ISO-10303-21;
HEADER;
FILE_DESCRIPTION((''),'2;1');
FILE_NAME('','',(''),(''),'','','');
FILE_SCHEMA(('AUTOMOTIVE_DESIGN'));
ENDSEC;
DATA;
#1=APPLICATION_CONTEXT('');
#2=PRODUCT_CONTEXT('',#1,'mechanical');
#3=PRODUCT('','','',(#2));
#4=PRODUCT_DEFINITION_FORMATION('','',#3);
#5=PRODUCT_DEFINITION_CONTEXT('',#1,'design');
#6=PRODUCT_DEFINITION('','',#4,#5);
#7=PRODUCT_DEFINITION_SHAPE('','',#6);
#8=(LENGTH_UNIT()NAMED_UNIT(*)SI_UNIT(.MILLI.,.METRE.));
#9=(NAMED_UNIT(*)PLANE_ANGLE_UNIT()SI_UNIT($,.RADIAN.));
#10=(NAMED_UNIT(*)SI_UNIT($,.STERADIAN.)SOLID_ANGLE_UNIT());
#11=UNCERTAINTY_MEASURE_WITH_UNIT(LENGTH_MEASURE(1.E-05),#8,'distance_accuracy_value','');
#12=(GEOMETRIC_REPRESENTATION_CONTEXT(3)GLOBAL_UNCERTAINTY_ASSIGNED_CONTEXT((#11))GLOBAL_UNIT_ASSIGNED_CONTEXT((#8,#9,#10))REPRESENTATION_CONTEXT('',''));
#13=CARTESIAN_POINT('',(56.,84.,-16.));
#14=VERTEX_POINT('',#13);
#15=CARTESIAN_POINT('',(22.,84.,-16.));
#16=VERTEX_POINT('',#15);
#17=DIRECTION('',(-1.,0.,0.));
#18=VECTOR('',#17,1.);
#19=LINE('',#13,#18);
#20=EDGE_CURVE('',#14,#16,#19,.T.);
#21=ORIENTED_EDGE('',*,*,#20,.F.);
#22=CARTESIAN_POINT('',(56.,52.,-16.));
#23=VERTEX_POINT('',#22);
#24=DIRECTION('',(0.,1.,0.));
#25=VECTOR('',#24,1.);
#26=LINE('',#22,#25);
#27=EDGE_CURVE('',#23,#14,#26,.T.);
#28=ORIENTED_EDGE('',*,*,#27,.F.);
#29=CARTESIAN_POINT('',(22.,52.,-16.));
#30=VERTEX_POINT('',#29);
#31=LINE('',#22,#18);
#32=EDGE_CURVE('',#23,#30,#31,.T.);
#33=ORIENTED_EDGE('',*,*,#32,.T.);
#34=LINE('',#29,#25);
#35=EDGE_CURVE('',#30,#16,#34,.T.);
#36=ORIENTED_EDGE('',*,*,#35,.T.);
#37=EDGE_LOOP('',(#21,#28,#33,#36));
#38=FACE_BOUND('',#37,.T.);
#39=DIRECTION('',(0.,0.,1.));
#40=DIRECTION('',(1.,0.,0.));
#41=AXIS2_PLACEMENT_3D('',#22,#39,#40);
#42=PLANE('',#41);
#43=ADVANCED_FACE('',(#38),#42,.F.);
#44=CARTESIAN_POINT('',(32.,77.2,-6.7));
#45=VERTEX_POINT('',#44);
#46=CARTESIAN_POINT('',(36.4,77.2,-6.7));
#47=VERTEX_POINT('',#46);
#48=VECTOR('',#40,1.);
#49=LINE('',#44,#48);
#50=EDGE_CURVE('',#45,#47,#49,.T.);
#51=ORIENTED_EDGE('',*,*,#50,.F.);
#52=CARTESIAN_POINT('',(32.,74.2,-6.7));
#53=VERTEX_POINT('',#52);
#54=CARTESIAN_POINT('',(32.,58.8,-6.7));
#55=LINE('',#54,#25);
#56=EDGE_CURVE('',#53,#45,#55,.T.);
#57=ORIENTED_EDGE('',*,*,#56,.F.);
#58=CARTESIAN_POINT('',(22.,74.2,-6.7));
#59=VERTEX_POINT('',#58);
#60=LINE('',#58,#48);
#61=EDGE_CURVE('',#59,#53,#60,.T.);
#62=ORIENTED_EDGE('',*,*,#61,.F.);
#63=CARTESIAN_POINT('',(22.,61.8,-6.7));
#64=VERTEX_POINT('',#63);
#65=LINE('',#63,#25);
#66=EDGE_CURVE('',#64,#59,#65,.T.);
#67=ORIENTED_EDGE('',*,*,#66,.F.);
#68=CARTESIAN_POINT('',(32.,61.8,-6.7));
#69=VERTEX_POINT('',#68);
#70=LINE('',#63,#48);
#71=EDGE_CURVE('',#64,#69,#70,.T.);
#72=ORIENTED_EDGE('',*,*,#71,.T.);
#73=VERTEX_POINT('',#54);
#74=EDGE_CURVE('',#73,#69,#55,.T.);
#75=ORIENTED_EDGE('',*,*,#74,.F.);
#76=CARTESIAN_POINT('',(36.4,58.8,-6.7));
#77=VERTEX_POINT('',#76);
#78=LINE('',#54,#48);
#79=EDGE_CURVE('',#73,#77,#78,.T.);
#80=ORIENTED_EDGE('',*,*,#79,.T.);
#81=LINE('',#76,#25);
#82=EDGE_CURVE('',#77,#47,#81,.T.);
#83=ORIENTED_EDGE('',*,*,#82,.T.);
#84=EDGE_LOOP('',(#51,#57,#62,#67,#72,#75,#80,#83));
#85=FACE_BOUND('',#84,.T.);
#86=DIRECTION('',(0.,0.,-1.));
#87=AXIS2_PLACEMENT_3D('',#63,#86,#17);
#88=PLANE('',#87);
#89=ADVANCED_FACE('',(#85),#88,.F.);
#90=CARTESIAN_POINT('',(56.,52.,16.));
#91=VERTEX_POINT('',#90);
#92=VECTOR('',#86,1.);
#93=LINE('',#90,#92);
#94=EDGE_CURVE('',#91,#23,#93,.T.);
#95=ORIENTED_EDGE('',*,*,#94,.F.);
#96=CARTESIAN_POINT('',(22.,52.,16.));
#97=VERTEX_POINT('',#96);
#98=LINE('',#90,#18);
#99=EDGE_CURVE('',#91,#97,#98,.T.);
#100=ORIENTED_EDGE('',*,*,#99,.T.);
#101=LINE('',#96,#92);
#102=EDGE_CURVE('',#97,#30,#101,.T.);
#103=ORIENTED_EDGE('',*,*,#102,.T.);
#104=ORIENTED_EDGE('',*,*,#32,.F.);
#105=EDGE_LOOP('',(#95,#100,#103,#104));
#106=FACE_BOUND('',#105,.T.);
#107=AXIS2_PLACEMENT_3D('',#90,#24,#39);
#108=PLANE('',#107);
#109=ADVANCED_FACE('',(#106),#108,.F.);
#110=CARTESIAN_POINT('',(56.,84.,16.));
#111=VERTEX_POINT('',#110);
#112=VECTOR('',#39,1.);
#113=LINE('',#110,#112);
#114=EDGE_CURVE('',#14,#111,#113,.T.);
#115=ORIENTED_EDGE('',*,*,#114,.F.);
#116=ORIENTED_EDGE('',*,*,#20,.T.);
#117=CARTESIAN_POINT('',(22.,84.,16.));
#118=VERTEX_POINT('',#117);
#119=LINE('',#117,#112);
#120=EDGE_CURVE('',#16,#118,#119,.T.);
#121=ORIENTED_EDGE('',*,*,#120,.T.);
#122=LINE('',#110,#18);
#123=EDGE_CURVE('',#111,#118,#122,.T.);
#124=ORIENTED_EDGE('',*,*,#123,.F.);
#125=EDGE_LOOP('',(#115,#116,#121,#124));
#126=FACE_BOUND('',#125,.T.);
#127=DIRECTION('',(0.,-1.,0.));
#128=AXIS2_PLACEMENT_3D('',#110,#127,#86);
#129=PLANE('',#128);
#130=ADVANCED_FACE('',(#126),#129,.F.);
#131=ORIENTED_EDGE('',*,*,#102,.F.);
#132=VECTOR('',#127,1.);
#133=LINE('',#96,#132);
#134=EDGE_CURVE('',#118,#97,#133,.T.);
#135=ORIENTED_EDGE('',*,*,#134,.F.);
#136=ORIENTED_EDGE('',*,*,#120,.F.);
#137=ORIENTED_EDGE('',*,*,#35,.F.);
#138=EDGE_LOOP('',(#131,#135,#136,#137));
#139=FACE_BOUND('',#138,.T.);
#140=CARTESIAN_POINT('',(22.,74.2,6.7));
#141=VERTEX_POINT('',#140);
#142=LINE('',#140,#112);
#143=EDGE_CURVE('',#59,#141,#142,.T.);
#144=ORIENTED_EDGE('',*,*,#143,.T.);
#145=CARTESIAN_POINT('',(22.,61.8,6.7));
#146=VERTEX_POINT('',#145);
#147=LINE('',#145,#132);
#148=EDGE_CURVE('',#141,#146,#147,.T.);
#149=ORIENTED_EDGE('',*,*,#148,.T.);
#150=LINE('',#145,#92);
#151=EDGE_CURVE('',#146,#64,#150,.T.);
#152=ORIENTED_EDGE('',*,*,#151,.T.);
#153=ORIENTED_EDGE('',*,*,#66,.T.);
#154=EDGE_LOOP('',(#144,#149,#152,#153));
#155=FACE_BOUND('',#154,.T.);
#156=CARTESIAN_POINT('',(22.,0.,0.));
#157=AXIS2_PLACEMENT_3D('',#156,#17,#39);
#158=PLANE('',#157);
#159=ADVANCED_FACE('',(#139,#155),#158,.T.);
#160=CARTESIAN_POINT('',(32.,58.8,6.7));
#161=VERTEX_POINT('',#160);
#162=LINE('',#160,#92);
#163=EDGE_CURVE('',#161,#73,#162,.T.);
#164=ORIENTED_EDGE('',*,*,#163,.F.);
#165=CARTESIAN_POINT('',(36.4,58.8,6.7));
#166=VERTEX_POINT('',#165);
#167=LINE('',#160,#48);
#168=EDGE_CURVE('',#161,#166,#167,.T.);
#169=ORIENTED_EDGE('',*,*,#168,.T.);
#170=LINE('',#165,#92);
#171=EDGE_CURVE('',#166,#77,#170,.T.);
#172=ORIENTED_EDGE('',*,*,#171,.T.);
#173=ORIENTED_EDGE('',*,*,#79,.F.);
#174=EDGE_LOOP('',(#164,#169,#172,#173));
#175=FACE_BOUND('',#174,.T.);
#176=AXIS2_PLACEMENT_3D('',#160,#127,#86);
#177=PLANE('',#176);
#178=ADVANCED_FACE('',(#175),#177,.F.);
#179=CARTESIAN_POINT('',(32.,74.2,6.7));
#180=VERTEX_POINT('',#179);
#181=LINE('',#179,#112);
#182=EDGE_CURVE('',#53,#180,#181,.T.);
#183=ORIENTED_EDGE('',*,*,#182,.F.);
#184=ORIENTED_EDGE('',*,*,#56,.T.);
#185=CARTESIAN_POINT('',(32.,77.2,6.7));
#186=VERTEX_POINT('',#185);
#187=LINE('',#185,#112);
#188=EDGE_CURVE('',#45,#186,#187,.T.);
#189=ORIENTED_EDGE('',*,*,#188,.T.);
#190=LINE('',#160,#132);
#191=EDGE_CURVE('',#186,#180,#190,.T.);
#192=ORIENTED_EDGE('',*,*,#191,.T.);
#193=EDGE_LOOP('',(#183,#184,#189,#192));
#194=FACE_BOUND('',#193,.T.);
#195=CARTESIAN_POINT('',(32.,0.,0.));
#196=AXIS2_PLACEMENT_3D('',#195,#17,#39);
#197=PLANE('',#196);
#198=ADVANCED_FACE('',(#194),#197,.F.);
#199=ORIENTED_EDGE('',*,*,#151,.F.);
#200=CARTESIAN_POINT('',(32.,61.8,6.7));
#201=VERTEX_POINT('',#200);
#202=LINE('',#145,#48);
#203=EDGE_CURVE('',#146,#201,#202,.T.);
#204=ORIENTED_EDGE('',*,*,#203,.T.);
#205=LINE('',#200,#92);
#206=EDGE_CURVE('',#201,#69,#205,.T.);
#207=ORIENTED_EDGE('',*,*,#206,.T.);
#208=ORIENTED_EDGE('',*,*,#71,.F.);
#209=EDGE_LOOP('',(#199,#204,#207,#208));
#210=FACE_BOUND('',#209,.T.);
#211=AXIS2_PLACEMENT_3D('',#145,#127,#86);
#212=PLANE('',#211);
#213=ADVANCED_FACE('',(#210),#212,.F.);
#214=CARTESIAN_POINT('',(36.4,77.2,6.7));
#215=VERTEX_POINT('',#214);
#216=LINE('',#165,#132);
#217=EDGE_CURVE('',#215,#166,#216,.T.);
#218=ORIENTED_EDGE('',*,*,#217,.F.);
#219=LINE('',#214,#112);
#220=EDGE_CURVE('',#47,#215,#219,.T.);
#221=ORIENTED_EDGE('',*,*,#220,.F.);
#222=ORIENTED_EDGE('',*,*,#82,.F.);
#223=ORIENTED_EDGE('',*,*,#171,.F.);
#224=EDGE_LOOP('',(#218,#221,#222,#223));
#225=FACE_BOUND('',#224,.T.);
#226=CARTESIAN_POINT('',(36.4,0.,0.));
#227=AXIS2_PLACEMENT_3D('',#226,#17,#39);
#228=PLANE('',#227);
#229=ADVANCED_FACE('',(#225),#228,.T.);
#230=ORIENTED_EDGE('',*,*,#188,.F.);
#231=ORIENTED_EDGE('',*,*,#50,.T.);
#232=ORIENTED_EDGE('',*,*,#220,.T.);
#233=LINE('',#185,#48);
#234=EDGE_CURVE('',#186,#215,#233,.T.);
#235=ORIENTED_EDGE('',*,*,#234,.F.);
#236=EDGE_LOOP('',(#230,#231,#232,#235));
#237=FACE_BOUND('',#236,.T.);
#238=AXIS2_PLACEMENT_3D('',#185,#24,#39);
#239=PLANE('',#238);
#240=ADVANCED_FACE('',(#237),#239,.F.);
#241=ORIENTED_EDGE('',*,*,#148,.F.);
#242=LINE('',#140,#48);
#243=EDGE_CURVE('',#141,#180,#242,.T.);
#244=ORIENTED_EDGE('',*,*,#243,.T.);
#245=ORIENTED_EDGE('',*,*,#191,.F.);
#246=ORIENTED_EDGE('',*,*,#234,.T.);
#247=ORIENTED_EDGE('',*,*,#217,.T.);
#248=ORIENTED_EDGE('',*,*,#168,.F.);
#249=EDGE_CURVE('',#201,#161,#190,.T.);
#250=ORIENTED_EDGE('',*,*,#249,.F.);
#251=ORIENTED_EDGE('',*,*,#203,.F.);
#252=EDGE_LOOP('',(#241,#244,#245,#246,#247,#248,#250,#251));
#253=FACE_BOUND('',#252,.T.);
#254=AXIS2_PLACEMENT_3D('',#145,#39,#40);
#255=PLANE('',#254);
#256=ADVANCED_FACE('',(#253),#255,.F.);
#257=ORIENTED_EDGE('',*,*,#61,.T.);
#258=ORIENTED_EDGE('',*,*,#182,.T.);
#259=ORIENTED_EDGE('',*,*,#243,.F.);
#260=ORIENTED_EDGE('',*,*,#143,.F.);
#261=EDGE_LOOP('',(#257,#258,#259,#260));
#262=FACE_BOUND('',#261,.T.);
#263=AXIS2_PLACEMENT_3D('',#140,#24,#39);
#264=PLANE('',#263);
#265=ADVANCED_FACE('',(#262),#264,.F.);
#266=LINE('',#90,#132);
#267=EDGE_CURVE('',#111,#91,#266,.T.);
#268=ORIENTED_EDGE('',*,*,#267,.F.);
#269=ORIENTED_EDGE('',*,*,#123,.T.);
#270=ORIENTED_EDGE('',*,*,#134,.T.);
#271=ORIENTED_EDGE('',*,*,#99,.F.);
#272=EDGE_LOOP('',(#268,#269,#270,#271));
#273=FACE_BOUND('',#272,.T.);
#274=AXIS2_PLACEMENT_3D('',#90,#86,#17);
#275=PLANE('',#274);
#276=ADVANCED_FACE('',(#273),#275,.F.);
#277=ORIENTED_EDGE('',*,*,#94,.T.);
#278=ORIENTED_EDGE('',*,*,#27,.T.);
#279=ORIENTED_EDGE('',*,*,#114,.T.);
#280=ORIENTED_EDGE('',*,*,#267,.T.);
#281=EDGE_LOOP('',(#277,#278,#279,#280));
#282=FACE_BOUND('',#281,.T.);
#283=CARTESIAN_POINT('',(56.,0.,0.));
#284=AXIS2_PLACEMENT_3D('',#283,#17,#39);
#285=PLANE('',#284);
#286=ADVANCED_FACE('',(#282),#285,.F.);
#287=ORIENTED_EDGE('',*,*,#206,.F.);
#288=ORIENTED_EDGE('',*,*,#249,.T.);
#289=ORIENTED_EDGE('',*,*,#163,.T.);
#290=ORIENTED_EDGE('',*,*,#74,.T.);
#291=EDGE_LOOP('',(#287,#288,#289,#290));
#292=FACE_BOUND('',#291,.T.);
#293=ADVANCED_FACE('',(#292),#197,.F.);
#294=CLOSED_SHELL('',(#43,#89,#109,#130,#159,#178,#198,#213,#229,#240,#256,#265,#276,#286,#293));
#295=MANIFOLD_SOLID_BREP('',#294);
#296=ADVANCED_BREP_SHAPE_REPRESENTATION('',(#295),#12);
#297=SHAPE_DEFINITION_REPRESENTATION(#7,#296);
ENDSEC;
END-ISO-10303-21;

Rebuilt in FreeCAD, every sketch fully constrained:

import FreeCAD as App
import Part
import Sketcher
Q = App.Units.Quantity


def add_polygon(sketch, points):
    """Adds a closed chain of lines whose ends are joined by coincident constraints."""
    first, n = sketch.GeometryCount, len(points)
    for a, b in zip(points, points[1:] + points[:1]):
        sketch.addGeometry(Part.LineSegment(App.Vector(*a, 0), App.Vector(*b, 0)), False)
    for i in range(n):
        sketch.addConstraint(Sketcher.Constraint("Coincident", first + i, 2, first + (i + 1) % n, 1))

doc = App.newDocument("Part")
params = doc.addObject("Spreadsheet::Sheet", "Params")
for row, (alias, value) in enumerate([
    ("sketch1_width", "32 mm"),
    ("pad1_length", "34 mm"),
    ("sketch2_width", "12.4 mm"),
    ("sketch2_height", "13.4 mm"),
    ("pocket1_length", "10 mm"),
    ("sketch3_width", "18.4 mm"),
    ("sketch3_height", "13.4 mm"),
    ("pocket2_length", "4.4 mm"),
], start=1):
    params.set(f"A{row}", alias)
    params.set(f"B{row}", "=" + value)
    params.setAlias(f"B{row}", alias)

body = doc.addObject("PartDesign::Body", "Body")

sketch1 = body.newObject("Sketcher::SketchObject", "Sketch")
sketch1.AttachmentSupport = (doc.getObject("YZ_Plane"), [""])
sketch1.MapMode = "FlatFace"
sketch1.AttachmentOffset = App.Placement(App.Vector(0, 0, 39), App.Rotation())
add_polygon(sketch1, [(84, 16), (52, 16), (52, -16), (84, -16)])
sketch1.addConstraint(Sketcher.Constraint("Horizontal", 0))
sketch1.addConstraint(Sketcher.Constraint("Vertical", 1))
sketch1.addConstraint(Sketcher.Constraint("Horizontal", 2))
sketch1.addConstraint(Sketcher.Constraint("Vertical", 3))
sketch1.addConstraint(Sketcher.Constraint("Equal", 2, 1))
sketch1.addConstraint(Sketcher.Constraint("DistanceX", 0, 2, 0, 1, Q("32 mm")))
sketch1.addConstraint(Sketcher.Constraint("DistanceX", -1, 1, 0, 2, Q("52 mm")))
sketch1.addConstraint(Sketcher.Constraint("DistanceY", -1, 1, 0, 2, Q("16 mm")))
sketch1.setExpression("Constraints[9]", "Params.sketch1_width")
pad1 = body.newObject("PartDesign::Pad", "Pad")
pad1.Profile = sketch1
pad1.setExpression("Length", "Params.pad1_length")
pad1.Midplane = True

sketch2 = body.newObject("Sketcher::SketchObject", "Sketch001")
sketch2.AttachmentSupport = (doc.getObject("YZ_Plane"), [""])
sketch2.MapMode = "FlatFace"
sketch2.AttachmentOffset = App.Placement(App.Vector(0, 0, 27), App.Rotation())
add_polygon(sketch2, [(74, 7), (62, 7), (62, -7), (74, -7)])
sketch2.addConstraint(Sketcher.Constraint("Horizontal", 0))
sketch2.addConstraint(Sketcher.Constraint("Vertical", 1))
sketch2.addConstraint(Sketcher.Constraint("Horizontal", 2))
sketch2.addConstraint(Sketcher.Constraint("Vertical", 3))
sketch2.addConstraint(Sketcher.Constraint("DistanceX", 0, 2, 0, 1, Q("12.4 mm")))
sketch2.addConstraint(Sketcher.Constraint("DistanceY", 1, 2, 1, 1, Q("13.4 mm")))
sketch2.addConstraint(Sketcher.Constraint("DistanceX", -1, 1, 0, 2, Q("61.8 mm")))
sketch2.addConstraint(Sketcher.Constraint("DistanceY", -1, 1, 0, 2, Q("6.7 mm")))
sketch2.setExpression("Constraints[8]", "Params.sketch2_width")
sketch2.setExpression("Constraints[9]", "Params.sketch2_height")
pocket1 = body.newObject("PartDesign::Pocket", "Pocket")
pocket1.Profile = sketch2
pocket1.setExpression("Length", "Params.pocket1_length")
pocket1.Midplane = True

sketch3 = body.newObject("Sketcher::SketchObject", "Sketch002")
sketch3.AttachmentSupport = (doc.getObject("YZ_Plane"), [""])
sketch3.MapMode = "FlatFace"
sketch3.AttachmentOffset = App.Placement(App.Vector(0, 0, 34.2), App.Rotation())
add_polygon(sketch3, [(77, 7), (59, 7), (59, -7), (77, -7)])
sketch3.addConstraint(Sketcher.Constraint("Horizontal", 0))
sketch3.addConstraint(Sketcher.Constraint("Vertical", 1))
sketch3.addConstraint(Sketcher.Constraint("Horizontal", 2))
sketch3.addConstraint(Sketcher.Constraint("Vertical", 3))
sketch3.addConstraint(Sketcher.Constraint("DistanceX", 0, 2, 0, 1, Q("18.4 mm")))
sketch3.addConstraint(Sketcher.Constraint("DistanceY", 1, 2, 1, 1, Q("13.4 mm")))
sketch3.addConstraint(Sketcher.Constraint("DistanceX", -1, 1, 0, 2, Q("58.8 mm")))
sketch3.addConstraint(Sketcher.Constraint("DistanceY", -1, 1, 0, 2, Q("6.7 mm")))
sketch3.setExpression("Constraints[8]", "Params.sketch3_width")
sketch3.setExpression("Constraints[9]", "Params.sketch3_height")
pocket2 = body.newObject("PartDesign::Pocket", "Pocket001")
pocket2.Profile = sketch3
pocket2.setExpression("Length", "Params.pocket2_length")
pocket2.Midplane = True

doc.recompute()
